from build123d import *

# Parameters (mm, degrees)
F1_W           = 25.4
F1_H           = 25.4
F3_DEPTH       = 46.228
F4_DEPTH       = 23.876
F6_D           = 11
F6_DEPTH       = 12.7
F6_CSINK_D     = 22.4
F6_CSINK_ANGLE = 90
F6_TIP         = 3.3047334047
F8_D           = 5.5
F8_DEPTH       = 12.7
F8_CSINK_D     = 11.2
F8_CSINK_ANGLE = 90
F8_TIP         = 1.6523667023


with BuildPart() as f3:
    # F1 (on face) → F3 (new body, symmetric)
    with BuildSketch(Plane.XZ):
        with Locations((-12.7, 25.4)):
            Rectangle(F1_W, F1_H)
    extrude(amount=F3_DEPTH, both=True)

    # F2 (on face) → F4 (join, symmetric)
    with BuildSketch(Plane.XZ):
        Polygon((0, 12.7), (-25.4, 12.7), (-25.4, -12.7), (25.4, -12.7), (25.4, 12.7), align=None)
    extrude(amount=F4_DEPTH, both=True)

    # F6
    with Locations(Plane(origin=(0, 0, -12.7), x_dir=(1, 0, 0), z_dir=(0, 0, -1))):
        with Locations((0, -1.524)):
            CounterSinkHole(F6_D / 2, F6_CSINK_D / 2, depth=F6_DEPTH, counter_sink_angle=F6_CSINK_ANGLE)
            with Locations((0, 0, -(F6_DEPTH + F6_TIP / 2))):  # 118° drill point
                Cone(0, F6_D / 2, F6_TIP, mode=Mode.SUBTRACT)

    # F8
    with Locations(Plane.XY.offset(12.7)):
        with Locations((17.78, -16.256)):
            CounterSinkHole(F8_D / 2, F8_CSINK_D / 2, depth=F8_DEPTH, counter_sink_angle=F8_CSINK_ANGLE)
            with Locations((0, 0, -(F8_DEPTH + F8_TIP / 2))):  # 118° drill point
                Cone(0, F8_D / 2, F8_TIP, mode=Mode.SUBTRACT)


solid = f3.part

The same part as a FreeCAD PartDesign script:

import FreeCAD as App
import Part
import Sketcher
from FreeCAD import Vector
Q = App.Units.Quantity

doc = App.newDocument("Part")
body = doc.addObject("PartDesign::Body", "Body")

sketch1 = doc.addObject("Sketcher::SketchObject", "Sketch")
body.addObject(sketch1)
sketch1.AttachmentSupport = (doc.XZ_Plane, [""])
sketch1.MapMode = "FlatFace"
sketch1.addGeometry([
    Part.LineSegment(Vector(-25, 38, 0), Vector(-25, 13, 0)),
    Part.LineSegment(Vector(-25, 13, 0), Vector(0, 13, 0)),
    Part.LineSegment(Vector(0, 13, 0), Vector(0, 38, 0)),
    Part.LineSegment(Vector(0, 38, 0), Vector(-25, 38, 0)),
], False)
sketch1.addConstraint([
    Sketcher.Constraint("Coincident", 0, 2, 1, 1),
    Sketcher.Constraint("Coincident", 1, 2, 2, 1),
    Sketcher.Constraint("Coincident", 2, 2, 3, 1),
    Sketcher.Constraint("Coincident", 3, 2, 0, 1),
    Sketcher.Constraint("Vertical", 0),
    Sketcher.Constraint("Horizontal", 1),
    Sketcher.Constraint("Vertical", 2),
    Sketcher.Constraint("Horizontal", 3),
    Sketcher.Constraint("PointOnObject", 1, 2, -2),
    Sketcher.Constraint("Equal", 3, 0),
    Sketcher.Constraint("DistanceX", 1, 1, 1, 2, Q("1 in")),
    Sketcher.Constraint("DistanceY", -1, 1, 0, 2, Q("0.5 in")),
])
pad1 = doc.addObject("PartDesign::Pad", "Pad")
body.addObject(pad1)
pad1.Profile = sketch1
pad1.Length = Q("3.64 in")
pad1.Midplane = True

sketch2 = doc.addObject("Sketcher::SketchObject", "Sketch001")
body.addObject(sketch2)
sketch2.AttachmentSupport = (doc.XZ_Plane, [""])
sketch2.MapMode = "FlatFace"
sketch2.addGeometry([
    Part.LineSegment(Vector(-25, 13, 0), Vector(-25, -13, 0)),
    Part.LineSegment(Vector(-25, -13, 0), Vector(25, -13, 0)),
    Part.LineSegment(Vector(25, -13, 0), Vector(25, 13, 0)),
    Part.LineSegment(Vector(25, 13, 0), Vector(-25, 13, 0)),
], False)
sketch2.addConstraint([
    Sketcher.Constraint("Coincident", 0, 2, 1, 1),
    Sketcher.Constraint("Coincident", 1, 2, 2, 1),
    Sketcher.Constraint("Coincident", 2, 2, 3, 1),
    Sketcher.Constraint("Coincident", 3, 2, 0, 1),
    Sketcher.Constraint("Vertical", 0),
    Sketcher.Constraint("Horizontal", 1),
    Sketcher.Constraint("Vertical", 2),
    Sketcher.Constraint("Horizontal", 3),
    Sketcher.Constraint("Symmetric", 0, 2, 2, 2, -1, 1),
    Sketcher.Constraint("DistanceX", 1, 1, 1, 2, Q("2 in")),
    Sketcher.Constraint("DistanceY", 0, 2, 0, 1, Q("1 in")),
])
pad2 = doc.addObject("PartDesign::Pad", "Pad001")
body.addObject(pad2)
pad2.Profile = sketch2
pad2.Length = Q("1.88 in")
pad2.Midplane = True

sketch3 = doc.addObject("Sketcher::SketchObject", "Sketch002")
body.addObject(sketch3)
sketch3.AttachmentSupport = (doc.XY_Plane, [""])
sketch3.MapMode = "FlatFace"
sketch3.AttachmentOffset = App.Placement(Vector(0, 0, -0.5 * 25.4), App.Rotation())
sketch3.addGeometry(Part.Circle(Vector(0, 2, 0), Vector(0, 0, 1), 6), False)
sketch3.addConstraint([
    Sketcher.Constraint("PointOnObject", 0, 3, -2),
    Sketcher.Constraint("Diameter", 0, 11.0),
    Sketcher.Constraint("DistanceY", -1, 1, 0, 3, Q("0.06 in")),
])
doc.recompute()
hole = doc.addObject("PartDesign::Hole", "Hole")
body.addObject(hole)
hole.Profile = sketch3
hole.ThreadType = "None"
hole.Diameter = 11
hole.DepthType = "Dimension"
hole.Depth = Q("0.5 in")
hole.DrillPoint = "Angled"
hole.DrillPointAngle = 118
hole.HoleCutType = "Countersink"
hole.HoleCutDiameter = 22.4
hole.HoleCutCountersinkAngle = 90
hole.Reversed = True

sketch4 = doc.addObject("Sketcher::SketchObject", "Sketch003")
body.addObject(sketch4)
sketch4.AttachmentSupport = (doc.XY_Plane, [""])
sketch4.MapMode = "FlatFace"
sketch4.AttachmentOffset = App.Placement(Vector(0, 0, 0.5 * 25.4), App.Rotation())
sketch4.addGeometry(Part.Circle(Vector(17.8, -16.3, 0), Vector(0, 0, 1), 2.8), False)
sketch4.addConstraint([
    Sketcher.Constraint("DistanceX", -1, 1, 0, 3, Q("0.7 in")),
    Sketcher.Constraint("Diameter", 0, 5.5),
    Sketcher.Constraint("DistanceY", 0, 3, -1, 1, Q("0.64 in")),
])
doc.recompute()
hole2 = doc.addObject("PartDesign::Hole", "Hole001")
body.addObject(hole2)
hole2.Profile = sketch4
hole2.ThreadType = "None"
hole2.Diameter = 5.5
hole2.DepthType = "Dimension"
hole2.Depth = Q("0.5 in")
hole2.DrillPoint = "Angled"
hole2.DrillPointAngle = 118
hole2.HoleCutType = "Countersink"
hole2.HoleCutDiameter = 11.2
hole2.HoleCutCountersinkAngle = 90

doc.recompute()
